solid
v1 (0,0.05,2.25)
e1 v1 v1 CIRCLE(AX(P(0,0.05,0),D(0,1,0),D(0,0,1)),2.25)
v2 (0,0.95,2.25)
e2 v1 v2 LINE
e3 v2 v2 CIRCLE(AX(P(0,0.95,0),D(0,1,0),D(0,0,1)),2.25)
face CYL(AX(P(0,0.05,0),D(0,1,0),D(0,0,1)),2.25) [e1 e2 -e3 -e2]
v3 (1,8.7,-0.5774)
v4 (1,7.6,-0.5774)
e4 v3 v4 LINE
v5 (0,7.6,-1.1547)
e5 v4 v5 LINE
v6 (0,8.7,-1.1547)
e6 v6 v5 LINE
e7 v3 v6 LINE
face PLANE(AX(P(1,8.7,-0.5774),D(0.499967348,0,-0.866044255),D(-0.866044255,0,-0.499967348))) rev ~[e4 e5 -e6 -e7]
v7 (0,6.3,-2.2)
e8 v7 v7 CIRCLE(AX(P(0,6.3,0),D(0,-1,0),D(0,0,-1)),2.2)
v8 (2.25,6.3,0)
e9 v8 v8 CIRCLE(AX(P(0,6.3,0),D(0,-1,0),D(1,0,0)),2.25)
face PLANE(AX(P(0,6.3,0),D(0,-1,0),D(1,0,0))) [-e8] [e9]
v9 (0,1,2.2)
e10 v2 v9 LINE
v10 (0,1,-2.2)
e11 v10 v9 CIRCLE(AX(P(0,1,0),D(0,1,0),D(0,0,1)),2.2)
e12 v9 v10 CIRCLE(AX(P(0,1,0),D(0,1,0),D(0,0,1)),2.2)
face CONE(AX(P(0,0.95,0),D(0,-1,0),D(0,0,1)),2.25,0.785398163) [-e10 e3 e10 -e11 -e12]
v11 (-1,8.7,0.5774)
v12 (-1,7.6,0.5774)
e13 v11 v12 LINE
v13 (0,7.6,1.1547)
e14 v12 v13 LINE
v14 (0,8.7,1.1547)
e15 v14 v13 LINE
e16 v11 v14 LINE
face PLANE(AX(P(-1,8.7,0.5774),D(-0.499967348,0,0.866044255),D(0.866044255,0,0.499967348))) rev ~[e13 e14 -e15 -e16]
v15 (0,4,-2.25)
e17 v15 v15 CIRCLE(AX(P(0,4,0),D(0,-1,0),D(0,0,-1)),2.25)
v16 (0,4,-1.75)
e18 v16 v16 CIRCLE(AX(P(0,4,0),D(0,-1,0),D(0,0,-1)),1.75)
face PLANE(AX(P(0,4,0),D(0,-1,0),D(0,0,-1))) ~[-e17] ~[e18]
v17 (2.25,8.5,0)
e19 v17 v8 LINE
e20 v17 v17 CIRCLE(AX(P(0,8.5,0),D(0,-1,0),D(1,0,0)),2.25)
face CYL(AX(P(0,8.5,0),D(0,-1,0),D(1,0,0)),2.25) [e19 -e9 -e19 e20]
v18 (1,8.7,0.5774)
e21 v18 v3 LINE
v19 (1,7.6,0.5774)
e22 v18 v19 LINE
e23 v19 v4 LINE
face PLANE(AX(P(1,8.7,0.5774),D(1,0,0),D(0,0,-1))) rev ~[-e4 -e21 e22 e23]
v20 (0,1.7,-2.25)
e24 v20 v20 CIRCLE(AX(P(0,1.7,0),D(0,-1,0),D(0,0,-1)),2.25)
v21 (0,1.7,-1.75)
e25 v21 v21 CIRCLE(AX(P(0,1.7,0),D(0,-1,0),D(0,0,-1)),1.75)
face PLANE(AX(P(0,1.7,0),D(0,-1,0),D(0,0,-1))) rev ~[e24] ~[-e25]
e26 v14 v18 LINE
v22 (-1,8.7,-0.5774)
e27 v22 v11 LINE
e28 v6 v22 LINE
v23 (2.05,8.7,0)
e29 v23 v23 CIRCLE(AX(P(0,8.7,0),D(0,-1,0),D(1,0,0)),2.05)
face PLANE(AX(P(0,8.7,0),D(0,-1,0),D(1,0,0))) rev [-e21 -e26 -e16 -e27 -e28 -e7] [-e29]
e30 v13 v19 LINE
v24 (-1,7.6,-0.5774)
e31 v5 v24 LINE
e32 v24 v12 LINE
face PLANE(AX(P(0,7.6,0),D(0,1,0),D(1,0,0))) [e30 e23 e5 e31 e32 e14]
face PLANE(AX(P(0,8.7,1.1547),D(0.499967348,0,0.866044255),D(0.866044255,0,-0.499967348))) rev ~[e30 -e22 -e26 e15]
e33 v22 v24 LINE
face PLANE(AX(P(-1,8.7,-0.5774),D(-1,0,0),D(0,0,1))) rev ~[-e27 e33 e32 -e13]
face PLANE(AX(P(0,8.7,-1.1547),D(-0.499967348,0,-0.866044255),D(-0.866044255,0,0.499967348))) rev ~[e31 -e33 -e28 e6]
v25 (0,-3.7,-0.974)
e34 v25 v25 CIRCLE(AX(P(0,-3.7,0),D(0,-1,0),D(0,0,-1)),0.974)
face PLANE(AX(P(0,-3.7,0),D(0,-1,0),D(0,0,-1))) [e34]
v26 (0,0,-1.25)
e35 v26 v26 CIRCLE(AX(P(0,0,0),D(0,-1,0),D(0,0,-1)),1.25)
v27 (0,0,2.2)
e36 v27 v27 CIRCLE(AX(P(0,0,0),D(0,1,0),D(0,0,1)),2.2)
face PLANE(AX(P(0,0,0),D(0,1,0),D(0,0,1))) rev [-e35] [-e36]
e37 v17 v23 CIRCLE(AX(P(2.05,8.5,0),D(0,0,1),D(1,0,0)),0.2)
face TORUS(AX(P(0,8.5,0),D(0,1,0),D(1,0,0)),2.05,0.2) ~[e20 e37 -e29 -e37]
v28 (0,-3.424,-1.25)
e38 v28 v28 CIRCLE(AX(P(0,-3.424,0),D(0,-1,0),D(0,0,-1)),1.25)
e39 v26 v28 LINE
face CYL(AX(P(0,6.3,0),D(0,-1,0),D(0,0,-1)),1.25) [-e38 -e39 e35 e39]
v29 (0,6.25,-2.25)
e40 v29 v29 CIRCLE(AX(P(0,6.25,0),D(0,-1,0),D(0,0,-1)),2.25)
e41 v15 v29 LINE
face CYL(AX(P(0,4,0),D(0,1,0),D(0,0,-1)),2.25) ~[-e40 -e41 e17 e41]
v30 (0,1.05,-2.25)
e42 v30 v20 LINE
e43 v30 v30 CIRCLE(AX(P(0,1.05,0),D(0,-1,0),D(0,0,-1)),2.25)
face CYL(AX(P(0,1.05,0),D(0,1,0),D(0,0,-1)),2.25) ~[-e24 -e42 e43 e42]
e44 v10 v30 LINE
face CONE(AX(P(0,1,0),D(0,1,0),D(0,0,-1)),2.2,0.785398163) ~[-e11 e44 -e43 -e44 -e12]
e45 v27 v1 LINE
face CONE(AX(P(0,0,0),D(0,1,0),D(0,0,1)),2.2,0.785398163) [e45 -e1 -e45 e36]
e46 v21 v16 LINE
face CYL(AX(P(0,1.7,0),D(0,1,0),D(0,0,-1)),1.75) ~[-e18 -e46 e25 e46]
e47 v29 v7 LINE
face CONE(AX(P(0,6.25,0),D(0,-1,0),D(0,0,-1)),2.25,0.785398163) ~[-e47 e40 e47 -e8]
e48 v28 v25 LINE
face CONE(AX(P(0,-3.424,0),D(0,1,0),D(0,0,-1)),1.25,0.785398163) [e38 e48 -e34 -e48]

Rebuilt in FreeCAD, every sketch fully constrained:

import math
import FreeCAD as App
import Part
import Sketcher
Q = App.Units.Quantity

doc = App.newDocument("Part")
body = doc.addObject("PartDesign::Body", "Body")

# Sketch on YZ plane
sketch1 = body.newObject("Sketcher::SketchObject", "Sketch")
sketch1.AttachmentSupport = (doc.getObject("YZ_Plane"), [""])
sketch1.MapMode = "FlatFace"
sketch1.addGeometry([
    Part.LineSegment(App.Vector(0, 0, 0), App.Vector(1, 0, 0)),  # 0
    Part.LineSegment(App.Vector(1, 0, 0), App.Vector(1, 2.2, 0)),  # 1
    Part.LineSegment(App.Vector(1, 2.2, 0), App.Vector(0.95, 2.25, 0)),  # 2
    Part.LineSegment(App.Vector(0.95, 2.25, 0), App.Vector(0.05, 2.25, 0)),  # 3
    Part.LineSegment(App.Vector(0.05, 2.25, 0), App.Vector(0, 2.2, 0)),  # 4
    Part.LineSegment(App.Vector(0, 2.2, 0), App.Vector(0, 0, 0)),  # 5
], False)
sketch1.addConstraint([
    Sketcher.Constraint("Coincident", 0, 2, 1, 1),
    Sketcher.Constraint("Coincident", 1, 2, 2, 1),
    Sketcher.Constraint("Coincident", 2, 2, 3, 1),
    Sketcher.Constraint("Coincident", 3, 2, 4, 1),
    Sketcher.Constraint("Coincident", 4, 2, 5, 1),
    Sketcher.Constraint("Coincident", 5, 2, 0, 1),
    Sketcher.Constraint("Horizontal", 0),
    Sketcher.Constraint("Vertical", 1),
    Sketcher.Constraint("Horizontal", 3),
    Sketcher.Constraint("Vertical", 5),
    Sketcher.Constraint("Coincident", 5, 2, -1, 1),
    Sketcher.Constraint("Perpendicular", 2, 4),
    Sketcher.Constraint("Horizontal", 1, 2, 4, 2),
    Sketcher.Constraint("Equal", 2, 4),
    Sketcher.Constraint("DistanceX", 0, 1, 0, 2, 1.0),
    Sketcher.Constraint("DistanceX", 3, 2, 3, 1, 0.9),
    Sketcher.Constraint("DistanceY", 1, 1, 1, 2, 2.2),
])
revolution = body.newObject("PartDesign::Revolution", "Revolution")
revolution.Profile = sketch1
revolution.ReferenceAxis = (sketch1, ["H_Axis"])
revolution.Angle = 360

# Sketch on YZ plane
sketch2 = body.newObject("Sketcher::SketchObject", "Sketch001")
sketch2.AttachmentSupport = (doc.getObject("YZ_Plane"), [""])
sketch2.MapMode = "FlatFace"
sketch2.addGeometry([
    Part.LineSegment(App.Vector(6.3, -2.2, 0), App.Vector(6.3, -1.25, 0)),  # 0
    Part.LineSegment(App.Vector(6.3, -1.25, 0), App.Vector(1, -1.25, 0)),  # 1
    Part.LineSegment(App.Vector(1, -1.25, 0), App.Vector(1, -2.2, 0)),  # 2
    Part.LineSegment(App.Vector(1, -2.2, 0), App.Vector(1.05, -2.25, 0)),  # 3
    Part.LineSegment(App.Vector(1.05, -2.25, 0), App.Vector(1.7, -2.25, 0)),  # 4
    Part.LineSegment(App.Vector(1.7, -2.25, 0), App.Vector(1.7, -1.75, 0)),  # 5
    Part.LineSegment(App.Vector(1.7, -1.75, 0), App.Vector(4, -1.75, 0)),  # 6
    Part.LineSegment(App.Vector(4, -1.75, 0), App.Vector(4, -2.25, 0)),  # 7
    Part.LineSegment(App.Vector(4, -2.25, 0), App.Vector(6.25, -2.25, 0)),  # 8
    Part.LineSegment(App.Vector(6.25, -2.25, 0), App.Vector(6.3, -2.2, 0)),  # 9
], False)
sketch2.addConstraint([
    Sketcher.Constraint("Coincident", 0, 2, 1, 1),
    Sketcher.Constraint("Coincident", 1, 2, 2, 1),
    Sketcher.Constraint("Coincident", 2, 2, 3, 1),
    Sketcher.Constraint("Coincident", 3, 2, 4, 1),
    Sketcher.Constraint("Coincident", 4, 2, 5, 1),
    Sketcher.Constraint("Coincident", 5, 2, 6, 1),
    Sketcher.Constraint("Coincident", 6, 2, 7, 1),
    Sketcher.Constraint("Coincident", 7, 2, 8, 1),
    Sketcher.Constraint("Coincident", 8, 2, 9, 1),
    Sketcher.Constraint("Coincident", 9, 2, 0, 1),
    Sketcher.Constraint("Vertical", 0),
    Sketcher.Constraint("Horizontal", 1),
    Sketcher.Constraint("Vertical", 2),
    Sketcher.Constraint("Horizontal", 4),
    Sketcher.Constraint("Vertical", 5),
    Sketcher.Constraint("Horizontal", 6),
    Sketcher.Constraint("Vertical", 7),
    Sketcher.Constraint("Horizontal", 8),
    Sketcher.Constraint("Perpendicular", 3, 9),
    Sketcher.Constraint("Horizontal", 4, 2, 7, 2),
    Sketcher.Constraint("Horizontal", 2, 2, 9, 2),
    Sketcher.Constraint("Equal", 3, 9),
    Sketcher.Constraint("DistanceX", 1, 2, 1, 1, 5.3),
    Sketcher.Constraint("DistanceX", 6, 1, 6, 2, 2.3),
    Sketcher.Constraint("DistanceY", 5, 1, 5, 2, 0.5),
    Sketcher.Constraint("DistanceX", -1, 1, 1, 2, 1.0),
    Sketcher.Constraint("DistanceX", -1, 1, 6, 2, 4.0),
    Sketcher.Constraint("DistanceY", 3, 2, 1, 2, 1.0),
    Sketcher.Constraint("DistanceX", 4, 1, 4, 2, 0.65),
    Sketcher.Constraint("DistanceY", 2, 2, -1, 1, 2.2),
])
revolution2 = body.newObject("PartDesign::Revolution", "Revolution001")
revolution2.Profile = sketch2
revolution2.ReferenceAxis = (sketch2, ["H_Axis"])
revolution2.Angle = 360

# Sketch on XY plane
sketch3 = body.newObject("Sketcher::SketchObject", "Sketch002")
sketch3.AttachmentSupport = (doc.getObject("XY_Plane"), [""])
sketch3.MapMode = "FlatFace"
sketch3.addGeometry([
    Part.LineSegment(App.Vector(0, 8.7, 0), App.Vector(0, 6.3, 0)),  # 0
    Part.LineSegment(App.Vector(0, 6.3, 0), App.Vector(2.25, 6.3, 0)),  # 1
    Part.LineSegment(App.Vector(2.25, 6.3, 0), App.Vector(2.25, 8.5, 0)),  # 2
    Part.ArcOfCircle(Part.Circle(App.Vector(2.05, 8.5, 0), App.Vector(0, 0, 1), 0.2), math.radians(0), math.radians(90)),  # 3
    Part.LineSegment(App.Vector(2.05, 8.7, 0), App.Vector(0, 8.7, 0)),  # 4
], False)
sketch3.addConstraint([
    Sketcher.Constraint("Coincident", 0, 2, 1, 1),
    Sketcher.Constraint("Coincident", 1, 2, 2, 1),
    Sketcher.Constraint("Tangent", 2, 2, 3, 1),
    Sketcher.Constraint("Tangent", 3, 2, 4, 1),
    Sketcher.Constraint("Coincident", 4, 2, 0, 1),
    Sketcher.Constraint("Vertical", 0),
    Sketcher.Constraint("Horizontal", 1),
    Sketcher.Constraint("Vertical", 2),
    Sketcher.Constraint("Horizontal", 4),
    Sketcher.Constraint("PointOnObject", 0, 2, -2),
    Sketcher.Constraint("Radius", 3, 0.2),
    Sketcher.Constraint("DistanceY", 0, 2, 0, 1, 2.4),
    Sketcher.Constraint("DistanceX", 1, 1, 1, 2, 2.25),
    Sketcher.Constraint("DistanceY", -1, 1, 3, 3, 8.5),
])
revolution3 = body.newObject("PartDesign::Revolution", "Revolution002")
revolution3.Profile = sketch3
revolution3.ReferenceAxis = (sketch3, ["V_Axis"])
revolution3.Angle = 360

# Sketch on XZ plane
sketch4 = body.newObject("Sketcher::SketchObject", "Sketch003")
sketch4.AttachmentSupport = (doc.getObject("XZ_Plane"), [""])
sketch4.MapMode = "FlatFace"
sketch4.AttachmentOffset = App.Placement(App.Vector(0, 0, -8.7), App.Rotation())
sketch4.addGeometry([
    Part.LineSegment(App.Vector(-1, -0.6, 0), App.Vector(-1, 0.6, 0)),  # 0
    Part.LineSegment(App.Vector(-1, 0.6, 0), App.Vector(0, 1.2, 0)),  # 1
    Part.LineSegment(App.Vector(0, 1.2, 0), App.Vector(1, 0.6, 0)),  # 2
    Part.LineSegment(App.Vector(1, 0.6, 0), App.Vector(1, -0.6, 0)),  # 3
    Part.LineSegment(App.Vector(1, -0.6, 0), App.Vector(0, -1.2, 0)),  # 4
    Part.LineSegment(App.Vector(0, -1.2, 0), App.Vector(-1, -0.6, 0)),  # 5
], False)
sketch4.addConstraint([
    Sketcher.Constraint("Coincident", 0, 2, 1, 1),
    Sketcher.Constraint("Coincident", 1, 2, 2, 1),
    Sketcher.Constraint("Coincident", 2, 2, 3, 1),
    Sketcher.Constraint("Coincident", 3, 2, 4, 1),
    Sketcher.Constraint("Coincident", 4, 2, 5, 1),
    Sketcher.Constraint("Coincident", 5, 2, 0, 1),
    Sketcher.Constraint("Vertical", 0),
    Sketcher.Constraint("Vertical", 3),
    Sketcher.Constraint("Symmetric", 0, 2, 3, 2, -1, 1),
    Sketcher.Constraint("Symmetric", 1, 2, 4, 2, -1, 1),
    Sketcher.Constraint("PointOnObject", 1, 2, -2),
    Sketcher.Constraint("Parallel", 2, 5),
    Sketcher.Constraint("Horizontal", 0, 2, 2, 2),
    Sketcher.Constraint("DistanceX", 0, 2, -1, 1, 1.0),
    Sketcher.Constraint("DistanceY", 0, 1, 0, 2, 1.1548),
    Sketcher.Constraint("DistanceY", 3, 2, 1, 2, 1.732),
])
pocket1 = body.newObject("PartDesign::Pocket", "Pocket")
pocket1.Profile = sketch4
pocket1.Length = 1.1
pocket1.Reversed = True

# Sketch on YZ plane
sketch5 = body.newObject("Sketcher::SketchObject", "Sketch004")
sketch5.AttachmentSupport = (doc.getObject("YZ_Plane"), [""])
sketch5.MapMode = "FlatFace"
sketch5.addGeometry([
    Part.LineSegment(App.Vector(6.3, 0, 0), App.Vector(-3.7, 0, 0)),  # 0
    Part.LineSegment(App.Vector(-3.7, 0, 0), App.Vector(-3.7, -0.97, 0)),  # 1
    Part.LineSegment(App.Vector(-3.7, -0.97, 0), App.Vector(-3.42, -1.25, 0)),  # 2
    Part.LineSegment(App.Vector(-3.42, -1.25, 0), App.Vector(6.3, -1.25, 0)),  # 3
    Part.LineSegment(App.Vector(6.3, -1.25, 0), App.Vector(6.3, 0, 0)),  # 4
], False)
sketch5.addConstraint([
    Sketcher.Constraint("Coincident", 0, 2, 1, 1),
    Sketcher.Constraint("Coincident", 1, 2, 2, 1),
    Sketcher.Constraint("Coincident", 2, 2, 3, 1),
    Sketcher.Constraint("Coincident", 3, 2, 4, 1),
    Sketcher.Constraint("Coincident", 4, 2, 0, 1),
    Sketcher.Constraint("Horizontal", 0),
    Sketcher.Constraint("Vertical", 1),
    Sketcher.Constraint("Horizontal", 3),
    Sketcher.Constraint("Vertical", 4),
    Sketcher.Constraint("PointOnObject", 0, 2, -1),
    Sketcher.Constraint("DistanceX", 0, 2, 0, 1, 10.0),
    Sketcher.Constraint("Angle", 2, Q("-45 deg")),
    Sketcher.Constraint("DistanceY", 4, 1, 4, 2, 1.25),
    Sketcher.Constraint("DistanceX", 0, 2, -1, 1, 3.7),
    Sketcher.Constraint("DistanceX", 3, 1, 3, 2, 9.724),
])
revolution4 = body.newObject("PartDesign::Revolution", "Revolution003")
revolution4.Profile = sketch5
revolution4.ReferenceAxis = (sketch5, ["H_Axis"])
revolution4.Angle = 360

doc.recompute()
